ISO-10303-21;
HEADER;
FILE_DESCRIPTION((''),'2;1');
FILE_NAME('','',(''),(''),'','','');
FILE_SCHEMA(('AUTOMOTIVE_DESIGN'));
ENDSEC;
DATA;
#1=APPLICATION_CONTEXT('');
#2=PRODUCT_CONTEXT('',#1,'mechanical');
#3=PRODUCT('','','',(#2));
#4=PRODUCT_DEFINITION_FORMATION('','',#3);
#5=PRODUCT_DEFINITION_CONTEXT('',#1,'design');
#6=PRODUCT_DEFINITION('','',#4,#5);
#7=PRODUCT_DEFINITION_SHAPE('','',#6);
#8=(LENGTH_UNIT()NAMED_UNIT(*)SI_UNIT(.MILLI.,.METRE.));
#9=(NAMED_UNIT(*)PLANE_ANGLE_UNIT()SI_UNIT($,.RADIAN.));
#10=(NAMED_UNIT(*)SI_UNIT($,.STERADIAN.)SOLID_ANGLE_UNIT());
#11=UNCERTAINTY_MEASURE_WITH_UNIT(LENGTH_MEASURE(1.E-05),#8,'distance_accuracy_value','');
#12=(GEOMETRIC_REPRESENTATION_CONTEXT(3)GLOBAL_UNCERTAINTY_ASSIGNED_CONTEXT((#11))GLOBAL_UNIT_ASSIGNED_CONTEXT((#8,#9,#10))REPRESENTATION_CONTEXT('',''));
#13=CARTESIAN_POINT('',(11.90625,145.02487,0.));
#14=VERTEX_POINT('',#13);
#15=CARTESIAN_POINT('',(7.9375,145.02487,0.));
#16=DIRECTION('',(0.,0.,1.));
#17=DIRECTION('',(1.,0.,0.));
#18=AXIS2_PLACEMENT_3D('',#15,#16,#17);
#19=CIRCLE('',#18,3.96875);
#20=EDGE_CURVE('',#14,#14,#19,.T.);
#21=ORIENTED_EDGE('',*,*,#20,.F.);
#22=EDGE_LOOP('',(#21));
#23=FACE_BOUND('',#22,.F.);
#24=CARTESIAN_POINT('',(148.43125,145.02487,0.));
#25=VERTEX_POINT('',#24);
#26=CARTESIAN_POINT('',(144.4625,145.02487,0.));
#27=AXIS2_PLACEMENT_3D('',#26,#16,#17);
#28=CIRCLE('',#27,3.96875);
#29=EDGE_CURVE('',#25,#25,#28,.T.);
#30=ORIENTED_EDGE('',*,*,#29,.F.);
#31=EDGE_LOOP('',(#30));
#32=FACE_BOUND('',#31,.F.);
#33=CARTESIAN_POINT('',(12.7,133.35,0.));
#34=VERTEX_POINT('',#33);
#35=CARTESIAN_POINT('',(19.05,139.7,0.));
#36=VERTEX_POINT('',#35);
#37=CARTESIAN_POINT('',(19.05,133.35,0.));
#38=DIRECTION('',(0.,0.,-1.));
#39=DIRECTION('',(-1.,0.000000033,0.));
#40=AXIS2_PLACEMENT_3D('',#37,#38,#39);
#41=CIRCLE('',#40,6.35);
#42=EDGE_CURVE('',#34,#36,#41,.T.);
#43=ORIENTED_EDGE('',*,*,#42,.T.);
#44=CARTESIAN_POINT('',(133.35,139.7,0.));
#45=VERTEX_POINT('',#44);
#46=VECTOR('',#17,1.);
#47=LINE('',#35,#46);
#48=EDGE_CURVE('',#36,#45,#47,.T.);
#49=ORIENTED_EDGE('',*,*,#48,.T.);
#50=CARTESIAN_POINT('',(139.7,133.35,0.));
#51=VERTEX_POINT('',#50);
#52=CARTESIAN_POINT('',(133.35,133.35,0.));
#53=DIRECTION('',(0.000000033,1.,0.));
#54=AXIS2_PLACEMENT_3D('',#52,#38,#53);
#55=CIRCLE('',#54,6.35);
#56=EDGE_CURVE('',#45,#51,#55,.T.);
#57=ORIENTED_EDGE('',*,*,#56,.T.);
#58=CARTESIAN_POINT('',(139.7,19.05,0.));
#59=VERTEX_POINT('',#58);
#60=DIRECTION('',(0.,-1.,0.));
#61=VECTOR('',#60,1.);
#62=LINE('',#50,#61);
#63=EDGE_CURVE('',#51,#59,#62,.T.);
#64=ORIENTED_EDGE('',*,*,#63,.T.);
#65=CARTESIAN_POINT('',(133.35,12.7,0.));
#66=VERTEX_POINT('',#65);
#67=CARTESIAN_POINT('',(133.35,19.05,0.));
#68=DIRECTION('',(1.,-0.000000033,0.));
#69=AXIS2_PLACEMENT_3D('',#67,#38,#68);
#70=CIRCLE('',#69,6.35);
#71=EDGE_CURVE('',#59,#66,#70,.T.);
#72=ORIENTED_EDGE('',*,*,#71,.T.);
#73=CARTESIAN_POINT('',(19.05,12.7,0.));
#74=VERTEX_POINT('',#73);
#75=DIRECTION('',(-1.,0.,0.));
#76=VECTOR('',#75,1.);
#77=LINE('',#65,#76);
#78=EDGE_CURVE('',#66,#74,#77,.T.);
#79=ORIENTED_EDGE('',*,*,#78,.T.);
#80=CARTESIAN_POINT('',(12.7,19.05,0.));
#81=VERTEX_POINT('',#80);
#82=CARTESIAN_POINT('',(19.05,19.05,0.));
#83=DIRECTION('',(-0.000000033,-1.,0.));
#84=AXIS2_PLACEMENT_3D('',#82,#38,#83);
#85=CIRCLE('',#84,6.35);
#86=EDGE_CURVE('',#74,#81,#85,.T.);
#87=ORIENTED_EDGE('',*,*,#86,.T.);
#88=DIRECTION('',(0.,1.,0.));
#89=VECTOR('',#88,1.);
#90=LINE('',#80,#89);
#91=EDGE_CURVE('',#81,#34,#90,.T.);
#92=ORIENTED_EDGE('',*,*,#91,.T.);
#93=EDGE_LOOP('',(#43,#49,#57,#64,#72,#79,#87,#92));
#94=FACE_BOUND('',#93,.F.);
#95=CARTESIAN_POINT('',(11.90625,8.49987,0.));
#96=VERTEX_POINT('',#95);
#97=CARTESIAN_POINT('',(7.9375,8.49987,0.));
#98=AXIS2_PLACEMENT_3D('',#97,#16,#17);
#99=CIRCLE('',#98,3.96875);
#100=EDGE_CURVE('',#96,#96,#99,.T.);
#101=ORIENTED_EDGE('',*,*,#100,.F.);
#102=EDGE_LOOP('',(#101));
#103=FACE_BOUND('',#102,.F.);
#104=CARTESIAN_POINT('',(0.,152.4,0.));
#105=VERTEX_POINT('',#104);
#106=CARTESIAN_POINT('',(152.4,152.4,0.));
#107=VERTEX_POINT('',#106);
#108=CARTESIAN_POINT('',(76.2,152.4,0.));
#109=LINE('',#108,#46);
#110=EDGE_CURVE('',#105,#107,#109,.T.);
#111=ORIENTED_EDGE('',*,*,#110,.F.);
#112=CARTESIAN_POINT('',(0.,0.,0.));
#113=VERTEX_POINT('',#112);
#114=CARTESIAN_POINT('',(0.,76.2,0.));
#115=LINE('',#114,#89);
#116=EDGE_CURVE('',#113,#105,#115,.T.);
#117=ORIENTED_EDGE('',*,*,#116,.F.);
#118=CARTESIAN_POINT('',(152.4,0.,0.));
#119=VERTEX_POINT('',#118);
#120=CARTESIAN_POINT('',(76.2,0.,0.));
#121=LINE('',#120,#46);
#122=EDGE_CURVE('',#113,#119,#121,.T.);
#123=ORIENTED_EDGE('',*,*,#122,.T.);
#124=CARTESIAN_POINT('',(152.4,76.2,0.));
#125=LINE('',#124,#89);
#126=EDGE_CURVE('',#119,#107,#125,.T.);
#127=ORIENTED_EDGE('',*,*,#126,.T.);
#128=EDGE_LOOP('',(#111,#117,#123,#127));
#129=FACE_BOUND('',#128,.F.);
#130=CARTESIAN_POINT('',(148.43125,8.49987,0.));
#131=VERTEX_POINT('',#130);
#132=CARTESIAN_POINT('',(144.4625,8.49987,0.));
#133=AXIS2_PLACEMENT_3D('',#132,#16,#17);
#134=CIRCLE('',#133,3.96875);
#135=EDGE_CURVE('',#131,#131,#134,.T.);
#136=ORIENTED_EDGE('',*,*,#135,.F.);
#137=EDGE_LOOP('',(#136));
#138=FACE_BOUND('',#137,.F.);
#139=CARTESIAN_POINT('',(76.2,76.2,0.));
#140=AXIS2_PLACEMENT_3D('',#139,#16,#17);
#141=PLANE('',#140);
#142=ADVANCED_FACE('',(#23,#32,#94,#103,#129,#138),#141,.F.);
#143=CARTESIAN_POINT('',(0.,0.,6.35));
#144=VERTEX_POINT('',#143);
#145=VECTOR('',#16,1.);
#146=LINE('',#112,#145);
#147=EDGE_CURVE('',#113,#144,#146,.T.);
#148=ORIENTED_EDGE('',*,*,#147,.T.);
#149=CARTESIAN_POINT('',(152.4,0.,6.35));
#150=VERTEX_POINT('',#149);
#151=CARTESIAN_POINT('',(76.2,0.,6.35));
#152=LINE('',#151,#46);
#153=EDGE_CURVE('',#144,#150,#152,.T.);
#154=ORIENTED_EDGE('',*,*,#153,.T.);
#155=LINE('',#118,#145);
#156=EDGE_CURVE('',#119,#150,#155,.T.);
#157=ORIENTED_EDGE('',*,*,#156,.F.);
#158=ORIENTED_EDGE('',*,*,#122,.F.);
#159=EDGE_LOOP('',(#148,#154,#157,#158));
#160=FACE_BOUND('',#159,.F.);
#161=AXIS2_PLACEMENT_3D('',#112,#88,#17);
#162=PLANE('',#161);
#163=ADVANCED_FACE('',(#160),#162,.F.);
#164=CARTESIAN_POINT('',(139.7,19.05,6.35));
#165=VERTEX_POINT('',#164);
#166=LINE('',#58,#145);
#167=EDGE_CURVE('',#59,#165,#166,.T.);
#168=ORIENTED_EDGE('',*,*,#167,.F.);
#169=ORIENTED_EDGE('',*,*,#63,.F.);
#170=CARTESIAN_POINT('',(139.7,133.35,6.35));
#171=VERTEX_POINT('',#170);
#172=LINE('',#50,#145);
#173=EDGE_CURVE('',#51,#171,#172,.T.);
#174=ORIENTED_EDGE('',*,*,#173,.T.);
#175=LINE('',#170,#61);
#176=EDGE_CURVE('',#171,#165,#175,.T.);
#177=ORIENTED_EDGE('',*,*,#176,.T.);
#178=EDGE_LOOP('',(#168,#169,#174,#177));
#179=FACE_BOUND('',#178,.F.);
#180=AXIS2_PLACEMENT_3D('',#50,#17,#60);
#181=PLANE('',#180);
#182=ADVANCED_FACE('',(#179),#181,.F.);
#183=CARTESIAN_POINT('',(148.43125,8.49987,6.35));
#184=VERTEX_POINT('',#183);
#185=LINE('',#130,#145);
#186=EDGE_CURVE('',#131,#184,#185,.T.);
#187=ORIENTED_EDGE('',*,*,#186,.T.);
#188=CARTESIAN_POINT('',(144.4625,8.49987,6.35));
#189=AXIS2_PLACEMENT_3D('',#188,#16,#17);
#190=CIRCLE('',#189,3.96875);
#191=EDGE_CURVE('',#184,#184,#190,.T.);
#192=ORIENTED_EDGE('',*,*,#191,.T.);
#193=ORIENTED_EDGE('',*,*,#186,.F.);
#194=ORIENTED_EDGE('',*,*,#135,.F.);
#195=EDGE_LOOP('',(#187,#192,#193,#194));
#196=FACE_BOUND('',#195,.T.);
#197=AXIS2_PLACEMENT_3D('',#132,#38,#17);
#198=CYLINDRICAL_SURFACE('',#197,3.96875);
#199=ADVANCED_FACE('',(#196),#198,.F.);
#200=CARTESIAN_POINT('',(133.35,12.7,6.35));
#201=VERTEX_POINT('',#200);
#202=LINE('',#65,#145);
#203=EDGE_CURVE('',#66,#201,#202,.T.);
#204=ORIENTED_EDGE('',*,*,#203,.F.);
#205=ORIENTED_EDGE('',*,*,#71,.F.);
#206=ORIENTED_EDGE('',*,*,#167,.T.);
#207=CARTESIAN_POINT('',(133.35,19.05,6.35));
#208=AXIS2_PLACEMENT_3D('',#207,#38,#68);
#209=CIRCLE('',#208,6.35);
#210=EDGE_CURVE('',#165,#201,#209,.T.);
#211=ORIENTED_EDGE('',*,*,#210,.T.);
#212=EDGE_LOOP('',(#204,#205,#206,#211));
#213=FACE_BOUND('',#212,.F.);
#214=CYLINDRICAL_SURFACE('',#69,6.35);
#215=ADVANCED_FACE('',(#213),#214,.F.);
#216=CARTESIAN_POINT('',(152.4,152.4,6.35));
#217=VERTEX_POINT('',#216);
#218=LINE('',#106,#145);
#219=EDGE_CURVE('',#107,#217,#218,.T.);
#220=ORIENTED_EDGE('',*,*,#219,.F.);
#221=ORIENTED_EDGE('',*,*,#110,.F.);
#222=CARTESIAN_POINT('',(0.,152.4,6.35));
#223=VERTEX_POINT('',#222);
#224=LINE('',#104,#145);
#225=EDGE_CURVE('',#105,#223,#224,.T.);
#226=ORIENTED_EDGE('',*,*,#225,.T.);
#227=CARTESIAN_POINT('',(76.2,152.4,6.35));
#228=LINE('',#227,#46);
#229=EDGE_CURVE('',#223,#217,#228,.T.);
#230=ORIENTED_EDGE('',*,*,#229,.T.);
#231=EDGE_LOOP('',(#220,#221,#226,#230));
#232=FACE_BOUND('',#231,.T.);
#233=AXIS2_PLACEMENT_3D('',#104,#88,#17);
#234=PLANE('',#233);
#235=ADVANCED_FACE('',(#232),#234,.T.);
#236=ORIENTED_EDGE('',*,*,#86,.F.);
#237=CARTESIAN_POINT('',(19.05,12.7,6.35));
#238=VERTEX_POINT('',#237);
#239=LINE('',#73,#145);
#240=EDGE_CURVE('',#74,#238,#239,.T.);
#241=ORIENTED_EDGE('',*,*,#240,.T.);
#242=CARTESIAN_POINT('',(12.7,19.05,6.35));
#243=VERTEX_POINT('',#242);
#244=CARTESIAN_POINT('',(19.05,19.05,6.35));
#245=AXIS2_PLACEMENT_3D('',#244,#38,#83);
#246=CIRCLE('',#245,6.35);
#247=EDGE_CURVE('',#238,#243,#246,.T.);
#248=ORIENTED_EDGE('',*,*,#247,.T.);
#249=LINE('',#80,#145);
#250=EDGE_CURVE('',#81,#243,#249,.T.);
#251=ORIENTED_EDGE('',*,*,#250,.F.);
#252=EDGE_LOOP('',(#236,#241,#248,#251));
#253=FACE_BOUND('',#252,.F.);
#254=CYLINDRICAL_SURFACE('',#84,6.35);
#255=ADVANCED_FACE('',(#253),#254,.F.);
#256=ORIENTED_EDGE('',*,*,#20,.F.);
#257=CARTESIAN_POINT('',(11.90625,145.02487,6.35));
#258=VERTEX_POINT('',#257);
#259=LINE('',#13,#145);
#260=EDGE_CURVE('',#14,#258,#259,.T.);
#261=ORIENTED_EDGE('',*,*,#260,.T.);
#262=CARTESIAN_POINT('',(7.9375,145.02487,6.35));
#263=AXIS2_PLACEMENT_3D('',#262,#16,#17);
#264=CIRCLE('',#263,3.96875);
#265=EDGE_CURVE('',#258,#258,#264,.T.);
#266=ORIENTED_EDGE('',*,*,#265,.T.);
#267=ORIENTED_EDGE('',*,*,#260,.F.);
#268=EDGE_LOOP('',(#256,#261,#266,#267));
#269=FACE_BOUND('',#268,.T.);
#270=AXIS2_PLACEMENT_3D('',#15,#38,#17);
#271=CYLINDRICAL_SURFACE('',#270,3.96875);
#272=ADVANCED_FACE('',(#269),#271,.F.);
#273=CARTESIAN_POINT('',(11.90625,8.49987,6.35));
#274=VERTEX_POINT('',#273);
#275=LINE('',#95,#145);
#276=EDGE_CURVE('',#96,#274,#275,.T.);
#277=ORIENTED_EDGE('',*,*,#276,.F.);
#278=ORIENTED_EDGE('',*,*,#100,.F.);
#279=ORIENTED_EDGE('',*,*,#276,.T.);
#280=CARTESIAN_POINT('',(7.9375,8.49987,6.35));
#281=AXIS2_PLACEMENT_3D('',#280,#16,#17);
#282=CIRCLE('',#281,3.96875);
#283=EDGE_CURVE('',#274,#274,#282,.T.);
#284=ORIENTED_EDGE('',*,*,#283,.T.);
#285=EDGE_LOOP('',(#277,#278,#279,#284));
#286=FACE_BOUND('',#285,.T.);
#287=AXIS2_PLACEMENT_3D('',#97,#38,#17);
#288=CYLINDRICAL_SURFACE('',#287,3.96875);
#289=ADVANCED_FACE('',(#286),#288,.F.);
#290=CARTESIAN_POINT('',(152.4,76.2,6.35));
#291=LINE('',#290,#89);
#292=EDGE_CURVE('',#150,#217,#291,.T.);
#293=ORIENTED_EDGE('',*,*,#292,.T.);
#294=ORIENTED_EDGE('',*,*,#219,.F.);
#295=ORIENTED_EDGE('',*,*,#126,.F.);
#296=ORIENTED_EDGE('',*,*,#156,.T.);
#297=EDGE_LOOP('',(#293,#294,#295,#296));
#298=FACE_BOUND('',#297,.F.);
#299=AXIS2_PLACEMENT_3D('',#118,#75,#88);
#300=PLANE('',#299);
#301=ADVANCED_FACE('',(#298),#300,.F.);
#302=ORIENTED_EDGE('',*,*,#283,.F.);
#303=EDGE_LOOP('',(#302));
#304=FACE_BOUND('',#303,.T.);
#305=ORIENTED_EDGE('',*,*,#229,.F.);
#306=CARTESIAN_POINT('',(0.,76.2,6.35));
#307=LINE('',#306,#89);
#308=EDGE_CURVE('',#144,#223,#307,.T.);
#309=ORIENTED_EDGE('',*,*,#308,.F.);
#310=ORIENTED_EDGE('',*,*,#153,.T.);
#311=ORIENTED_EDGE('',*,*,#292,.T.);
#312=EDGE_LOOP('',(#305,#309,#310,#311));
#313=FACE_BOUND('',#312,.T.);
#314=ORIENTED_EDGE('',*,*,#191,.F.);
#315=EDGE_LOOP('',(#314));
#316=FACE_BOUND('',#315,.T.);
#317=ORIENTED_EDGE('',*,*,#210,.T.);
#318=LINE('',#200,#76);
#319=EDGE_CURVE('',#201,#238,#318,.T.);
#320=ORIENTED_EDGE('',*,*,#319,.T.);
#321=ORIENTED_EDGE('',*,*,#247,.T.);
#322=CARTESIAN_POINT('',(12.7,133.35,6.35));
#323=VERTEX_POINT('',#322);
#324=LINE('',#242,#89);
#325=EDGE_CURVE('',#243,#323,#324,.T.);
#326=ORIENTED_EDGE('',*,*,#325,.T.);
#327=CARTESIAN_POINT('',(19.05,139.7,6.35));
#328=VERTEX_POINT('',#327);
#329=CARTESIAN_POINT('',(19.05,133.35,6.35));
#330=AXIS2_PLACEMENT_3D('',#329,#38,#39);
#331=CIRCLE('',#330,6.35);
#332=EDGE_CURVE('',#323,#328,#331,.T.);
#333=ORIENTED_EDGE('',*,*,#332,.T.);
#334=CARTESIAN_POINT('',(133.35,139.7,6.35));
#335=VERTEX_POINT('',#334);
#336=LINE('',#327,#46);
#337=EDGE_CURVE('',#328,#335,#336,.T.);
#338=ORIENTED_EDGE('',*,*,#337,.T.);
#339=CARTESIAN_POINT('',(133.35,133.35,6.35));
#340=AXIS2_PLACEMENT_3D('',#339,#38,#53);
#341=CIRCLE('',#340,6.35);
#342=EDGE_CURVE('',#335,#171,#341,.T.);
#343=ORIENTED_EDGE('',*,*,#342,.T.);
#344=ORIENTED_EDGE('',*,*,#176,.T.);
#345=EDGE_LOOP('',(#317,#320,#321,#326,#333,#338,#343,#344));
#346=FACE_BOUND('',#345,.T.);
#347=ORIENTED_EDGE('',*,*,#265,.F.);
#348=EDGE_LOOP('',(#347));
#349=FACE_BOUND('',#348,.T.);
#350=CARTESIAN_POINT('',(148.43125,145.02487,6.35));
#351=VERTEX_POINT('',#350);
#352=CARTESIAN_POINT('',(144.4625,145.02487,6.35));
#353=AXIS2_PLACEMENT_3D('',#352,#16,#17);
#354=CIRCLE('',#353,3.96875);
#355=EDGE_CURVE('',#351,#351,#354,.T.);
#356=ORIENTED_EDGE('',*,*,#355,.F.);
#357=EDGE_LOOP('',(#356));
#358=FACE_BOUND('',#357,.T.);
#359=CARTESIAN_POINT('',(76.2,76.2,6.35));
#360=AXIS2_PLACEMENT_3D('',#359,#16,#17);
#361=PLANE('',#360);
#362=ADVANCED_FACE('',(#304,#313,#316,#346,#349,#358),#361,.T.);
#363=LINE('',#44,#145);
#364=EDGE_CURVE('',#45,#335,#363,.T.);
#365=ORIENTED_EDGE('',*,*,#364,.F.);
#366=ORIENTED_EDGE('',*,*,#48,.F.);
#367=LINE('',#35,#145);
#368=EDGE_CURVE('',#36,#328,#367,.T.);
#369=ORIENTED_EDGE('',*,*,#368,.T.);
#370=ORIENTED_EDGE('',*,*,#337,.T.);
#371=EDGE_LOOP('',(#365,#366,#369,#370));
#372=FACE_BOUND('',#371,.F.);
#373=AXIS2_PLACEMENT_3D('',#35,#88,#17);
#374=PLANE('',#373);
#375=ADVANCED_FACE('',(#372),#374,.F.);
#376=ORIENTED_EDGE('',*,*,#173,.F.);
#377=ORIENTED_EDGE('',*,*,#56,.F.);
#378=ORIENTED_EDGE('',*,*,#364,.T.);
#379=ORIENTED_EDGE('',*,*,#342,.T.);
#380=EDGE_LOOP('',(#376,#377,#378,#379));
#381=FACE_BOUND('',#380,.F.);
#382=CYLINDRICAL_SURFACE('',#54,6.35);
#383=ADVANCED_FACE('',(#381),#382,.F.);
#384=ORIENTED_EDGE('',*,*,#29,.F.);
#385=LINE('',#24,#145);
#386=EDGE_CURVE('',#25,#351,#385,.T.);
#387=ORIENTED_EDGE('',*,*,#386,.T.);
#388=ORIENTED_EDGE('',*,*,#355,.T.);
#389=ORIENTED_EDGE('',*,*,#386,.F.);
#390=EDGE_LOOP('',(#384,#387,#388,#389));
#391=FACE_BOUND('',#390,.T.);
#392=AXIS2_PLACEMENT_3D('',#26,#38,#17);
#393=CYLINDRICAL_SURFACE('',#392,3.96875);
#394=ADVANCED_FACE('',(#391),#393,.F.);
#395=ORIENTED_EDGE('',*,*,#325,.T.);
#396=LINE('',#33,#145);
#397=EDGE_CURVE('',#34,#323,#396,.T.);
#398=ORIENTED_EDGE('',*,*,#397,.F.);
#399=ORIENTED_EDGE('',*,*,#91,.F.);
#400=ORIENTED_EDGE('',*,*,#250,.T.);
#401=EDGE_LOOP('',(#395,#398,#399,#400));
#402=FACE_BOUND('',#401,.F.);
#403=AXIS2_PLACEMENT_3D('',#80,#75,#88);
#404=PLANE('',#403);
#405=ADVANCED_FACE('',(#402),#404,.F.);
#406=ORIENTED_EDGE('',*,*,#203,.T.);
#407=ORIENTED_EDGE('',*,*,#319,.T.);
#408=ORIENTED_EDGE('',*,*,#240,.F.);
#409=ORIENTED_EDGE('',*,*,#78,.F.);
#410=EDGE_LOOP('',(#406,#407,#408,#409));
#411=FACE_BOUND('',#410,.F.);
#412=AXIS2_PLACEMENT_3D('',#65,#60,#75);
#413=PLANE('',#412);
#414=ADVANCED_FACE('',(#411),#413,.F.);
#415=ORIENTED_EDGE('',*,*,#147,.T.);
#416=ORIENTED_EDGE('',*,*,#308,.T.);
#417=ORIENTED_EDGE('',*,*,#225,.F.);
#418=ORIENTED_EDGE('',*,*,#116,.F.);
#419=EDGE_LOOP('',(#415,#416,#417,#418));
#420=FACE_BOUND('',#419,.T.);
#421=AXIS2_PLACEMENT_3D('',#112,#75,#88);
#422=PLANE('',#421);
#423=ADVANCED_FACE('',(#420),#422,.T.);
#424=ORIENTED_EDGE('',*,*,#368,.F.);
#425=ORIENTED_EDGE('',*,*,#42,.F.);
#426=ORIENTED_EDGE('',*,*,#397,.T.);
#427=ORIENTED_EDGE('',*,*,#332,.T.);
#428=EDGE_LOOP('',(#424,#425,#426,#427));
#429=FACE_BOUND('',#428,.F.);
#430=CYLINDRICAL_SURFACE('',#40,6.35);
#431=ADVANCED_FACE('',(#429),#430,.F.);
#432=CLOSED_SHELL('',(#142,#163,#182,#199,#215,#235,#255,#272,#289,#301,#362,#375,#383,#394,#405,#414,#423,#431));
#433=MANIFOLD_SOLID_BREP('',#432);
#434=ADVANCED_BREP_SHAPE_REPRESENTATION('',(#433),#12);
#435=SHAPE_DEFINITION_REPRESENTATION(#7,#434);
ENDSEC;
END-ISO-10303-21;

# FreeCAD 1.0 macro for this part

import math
import FreeCAD as App
import Part
import Sketcher

V = App.Vector
Q = App.Units.Quantity

doc = App.newDocument("Part")
body = doc.addObject("PartDesign::Body", "Body")

# Sketch on XY plane
sketch1 = body.newObject("Sketcher::SketchObject", "Sketch")
sketch1.AttachmentSupport = (doc.getObject("XY_Plane"), [""])
sketch1.MapMode = "FlatFace"
sketch1.addGeometry(Part.LineSegment(V(0, 152.4, 0), V(0, 0, 0)), False)
sketch1.addGeometry(Part.LineSegment(V(0, 0, 0), V(152.4, 0, 0)), False)
sketch1.addGeometry(Part.LineSegment(V(152.4, 0, 0), V(152.4, 152.4, 0)), False)
sketch1.addGeometry(Part.LineSegment(V(152.4, 152.4, 0), V(0, 152.4, 0)), False)
sketch1.addGeometry(Part.Circle(V(7.9, 8.5, 0), V(0, 0, 1), 4), False)
sketch1.addGeometry(Part.ArcOfCircle(Part.Circle(V(133.3, 19.1, 0), V(0, 0, 1), 6.4), math.radians(-90), math.radians(0)), False)
sketch1.addGeometry(Part.LineSegment(V(133.3, 12.7, 0), V(19.1, 12.7, 0)), False)
sketch1.addGeometry(Part.ArcOfCircle(Part.Circle(V(19.1, 19.1, 0), V(0, 0, 1), 6.4), math.radians(-180), math.radians(-90)), False)
sketch1.addGeometry(Part.LineSegment(V(12.7, 19.1, 0), V(12.7, 133.3, 0)), False)
sketch1.addGeometry(Part.ArcOfCircle(Part.Circle(V(19.1, 133.3, 0), V(0, 0, 1), 6.4), math.radians(90), math.radians(180)), False)
sketch1.addGeometry(Part.LineSegment(V(19.1, 139.7, 0), V(133.3, 139.7, 0)), False)
sketch1.addGeometry(Part.ArcOfCircle(Part.Circle(V(133.3, 133.3, 0), V(0, 0, 1), 6.4), math.radians(0), math.radians(90)), False)
sketch1.addGeometry(Part.LineSegment(V(139.7, 133.3, 0), V(139.7, 19.1, 0)), False)
sketch1.addGeometry(Part.Circle(V(144.5, 8.5, 0), V(0, 0, 1), 4), False)
sketch1.addGeometry(Part.Circle(V(7.9, 145, 0), V(0, 0, 1), 4), False)
sketch1.addGeometry(Part.Circle(V(144.5, 145, 0), V(0, 0, 1), 4), False)
sketch1.addConstraint(Sketcher.Constraint("Coincident", 0, 2, 1, 1))
sketch1.addConstraint(Sketcher.Constraint("Coincident", 1, 2, 2, 1))
sketch1.addConstraint(Sketcher.Constraint("Coincident", 2, 2, 3, 1))
sketch1.addConstraint(Sketcher.Constraint("Coincident", 3, 2, 0, 1))
sketch1.addConstraint(Sketcher.Constraint("Tangent", 5, 1, 6, 1))
sketch1.addConstraint(Sketcher.Constraint("Tangent", 6, 2, 7, 2))
sketch1.addConstraint(Sketcher.Constraint("Tangent", 7, 1, 8, 1))
sketch1.addConstraint(Sketcher.Constraint("Tangent", 8, 2, 9, 2))
sketch1.addConstraint(Sketcher.Constraint("Tangent", 9, 1, 10, 1))
sketch1.addConstraint(Sketcher.Constraint("Tangent", 10, 2, 11, 2))
sketch1.addConstraint(Sketcher.Constraint("Tangent", 11, 1, 12, 1))
sketch1.addConstraint(Sketcher.Constraint("Tangent", 12, 2, 5, 2))
sketch1.addConstraint(Sketcher.Constraint("Vertical", 0))
sketch1.addConstraint(Sketcher.Constraint("Horizontal", 1))
sketch1.addConstraint(Sketcher.Constraint("Vertical", 2))
sketch1.addConstraint(Sketcher.Constraint("Horizontal", 3))
sketch1.addConstraint(Sketcher.Constraint("Horizontal", 6))
sketch1.addConstraint(Sketcher.Constraint("Vertical", 8))
sketch1.addConstraint(Sketcher.Constraint("Horizontal", 10))
sketch1.addConstraint(Sketcher.Constraint("Vertical", 12))
sketch1.addConstraint(Sketcher.Constraint("Coincident", 0, 2, -1, 1))
sketch1.addConstraint(Sketcher.Constraint("Equal", 5, 7))
sketch1.addConstraint(Sketcher.Constraint("Equal", 7, 9))
sketch1.addConstraint(Sketcher.Constraint("Equal", 9, 11))
sketch1.addConstraint(Sketcher.Constraint("Equal", 4, 13))
sketch1.addConstraint(Sketcher.Constraint("Equal", 13, 14))
sketch1.addConstraint(Sketcher.Constraint("Equal", 14, 15))
sketch1.addConstraint(Sketcher.Constraint("Horizontal", 4, 3, 13, 3))
sketch1.addConstraint(Sketcher.Constraint("Horizontal", 14, 3, 15, 3))
sketch1.addConstraint(Sketcher.Constraint("Vertical", 4, 3, 14, 3))
sketch1.addConstraint(Sketcher.Constraint("Vertical", 13, 3, 15, 3))
sketch1.addConstraint(Sketcher.Constraint("Equal", 3, 0))
sketch1.addConstraint(Sketcher.Constraint("Equal", 10, 8))
sketch1.addConstraint(Sketcher.Constraint("DistanceX", 1, 1, 1, 2, Q("6 in")))
sketch1.addConstraint(Sketcher.Constraint("Radius", 5, Q("0.25 in")))
sketch1.addConstraint(Sketcher.Constraint("Diameter", 4, Q("0.3125 in")))
sketch1.addConstraint(Sketcher.Constraint("DistanceX", 6, 2, 6, 1, Q("4.5 in")))
sketch1.addConstraint(Sketcher.Constraint("DistanceY", -1, 1, 5, 1, Q("0.5 in")))
sketch1.addConstraint(Sketcher.Constraint("DistanceX", -1, 1, 7, 1, Q("0.5 in")))
sketch1.addConstraint(Sketcher.Constraint("DistanceX", -1, 1, 4, 3, Q("0.3125 in")))
sketch1.addConstraint(Sketcher.Constraint("DistanceX", -1, 1, 13, 3, Q("5.6875 in")))
sketch1.addConstraint(Sketcher.Constraint("DistanceY", 4, 3, 14, 3, Q("5.375 in")))
sketch1.addConstraint(Sketcher.Constraint("DistanceY", -1, 1, 4, 3, 8.49987))
pad1 = body.newObject("PartDesign::Pad", "Pad")
pad1.Profile = sketch1
pad1.Length = Q("0.25 in")

doc.recompute()
